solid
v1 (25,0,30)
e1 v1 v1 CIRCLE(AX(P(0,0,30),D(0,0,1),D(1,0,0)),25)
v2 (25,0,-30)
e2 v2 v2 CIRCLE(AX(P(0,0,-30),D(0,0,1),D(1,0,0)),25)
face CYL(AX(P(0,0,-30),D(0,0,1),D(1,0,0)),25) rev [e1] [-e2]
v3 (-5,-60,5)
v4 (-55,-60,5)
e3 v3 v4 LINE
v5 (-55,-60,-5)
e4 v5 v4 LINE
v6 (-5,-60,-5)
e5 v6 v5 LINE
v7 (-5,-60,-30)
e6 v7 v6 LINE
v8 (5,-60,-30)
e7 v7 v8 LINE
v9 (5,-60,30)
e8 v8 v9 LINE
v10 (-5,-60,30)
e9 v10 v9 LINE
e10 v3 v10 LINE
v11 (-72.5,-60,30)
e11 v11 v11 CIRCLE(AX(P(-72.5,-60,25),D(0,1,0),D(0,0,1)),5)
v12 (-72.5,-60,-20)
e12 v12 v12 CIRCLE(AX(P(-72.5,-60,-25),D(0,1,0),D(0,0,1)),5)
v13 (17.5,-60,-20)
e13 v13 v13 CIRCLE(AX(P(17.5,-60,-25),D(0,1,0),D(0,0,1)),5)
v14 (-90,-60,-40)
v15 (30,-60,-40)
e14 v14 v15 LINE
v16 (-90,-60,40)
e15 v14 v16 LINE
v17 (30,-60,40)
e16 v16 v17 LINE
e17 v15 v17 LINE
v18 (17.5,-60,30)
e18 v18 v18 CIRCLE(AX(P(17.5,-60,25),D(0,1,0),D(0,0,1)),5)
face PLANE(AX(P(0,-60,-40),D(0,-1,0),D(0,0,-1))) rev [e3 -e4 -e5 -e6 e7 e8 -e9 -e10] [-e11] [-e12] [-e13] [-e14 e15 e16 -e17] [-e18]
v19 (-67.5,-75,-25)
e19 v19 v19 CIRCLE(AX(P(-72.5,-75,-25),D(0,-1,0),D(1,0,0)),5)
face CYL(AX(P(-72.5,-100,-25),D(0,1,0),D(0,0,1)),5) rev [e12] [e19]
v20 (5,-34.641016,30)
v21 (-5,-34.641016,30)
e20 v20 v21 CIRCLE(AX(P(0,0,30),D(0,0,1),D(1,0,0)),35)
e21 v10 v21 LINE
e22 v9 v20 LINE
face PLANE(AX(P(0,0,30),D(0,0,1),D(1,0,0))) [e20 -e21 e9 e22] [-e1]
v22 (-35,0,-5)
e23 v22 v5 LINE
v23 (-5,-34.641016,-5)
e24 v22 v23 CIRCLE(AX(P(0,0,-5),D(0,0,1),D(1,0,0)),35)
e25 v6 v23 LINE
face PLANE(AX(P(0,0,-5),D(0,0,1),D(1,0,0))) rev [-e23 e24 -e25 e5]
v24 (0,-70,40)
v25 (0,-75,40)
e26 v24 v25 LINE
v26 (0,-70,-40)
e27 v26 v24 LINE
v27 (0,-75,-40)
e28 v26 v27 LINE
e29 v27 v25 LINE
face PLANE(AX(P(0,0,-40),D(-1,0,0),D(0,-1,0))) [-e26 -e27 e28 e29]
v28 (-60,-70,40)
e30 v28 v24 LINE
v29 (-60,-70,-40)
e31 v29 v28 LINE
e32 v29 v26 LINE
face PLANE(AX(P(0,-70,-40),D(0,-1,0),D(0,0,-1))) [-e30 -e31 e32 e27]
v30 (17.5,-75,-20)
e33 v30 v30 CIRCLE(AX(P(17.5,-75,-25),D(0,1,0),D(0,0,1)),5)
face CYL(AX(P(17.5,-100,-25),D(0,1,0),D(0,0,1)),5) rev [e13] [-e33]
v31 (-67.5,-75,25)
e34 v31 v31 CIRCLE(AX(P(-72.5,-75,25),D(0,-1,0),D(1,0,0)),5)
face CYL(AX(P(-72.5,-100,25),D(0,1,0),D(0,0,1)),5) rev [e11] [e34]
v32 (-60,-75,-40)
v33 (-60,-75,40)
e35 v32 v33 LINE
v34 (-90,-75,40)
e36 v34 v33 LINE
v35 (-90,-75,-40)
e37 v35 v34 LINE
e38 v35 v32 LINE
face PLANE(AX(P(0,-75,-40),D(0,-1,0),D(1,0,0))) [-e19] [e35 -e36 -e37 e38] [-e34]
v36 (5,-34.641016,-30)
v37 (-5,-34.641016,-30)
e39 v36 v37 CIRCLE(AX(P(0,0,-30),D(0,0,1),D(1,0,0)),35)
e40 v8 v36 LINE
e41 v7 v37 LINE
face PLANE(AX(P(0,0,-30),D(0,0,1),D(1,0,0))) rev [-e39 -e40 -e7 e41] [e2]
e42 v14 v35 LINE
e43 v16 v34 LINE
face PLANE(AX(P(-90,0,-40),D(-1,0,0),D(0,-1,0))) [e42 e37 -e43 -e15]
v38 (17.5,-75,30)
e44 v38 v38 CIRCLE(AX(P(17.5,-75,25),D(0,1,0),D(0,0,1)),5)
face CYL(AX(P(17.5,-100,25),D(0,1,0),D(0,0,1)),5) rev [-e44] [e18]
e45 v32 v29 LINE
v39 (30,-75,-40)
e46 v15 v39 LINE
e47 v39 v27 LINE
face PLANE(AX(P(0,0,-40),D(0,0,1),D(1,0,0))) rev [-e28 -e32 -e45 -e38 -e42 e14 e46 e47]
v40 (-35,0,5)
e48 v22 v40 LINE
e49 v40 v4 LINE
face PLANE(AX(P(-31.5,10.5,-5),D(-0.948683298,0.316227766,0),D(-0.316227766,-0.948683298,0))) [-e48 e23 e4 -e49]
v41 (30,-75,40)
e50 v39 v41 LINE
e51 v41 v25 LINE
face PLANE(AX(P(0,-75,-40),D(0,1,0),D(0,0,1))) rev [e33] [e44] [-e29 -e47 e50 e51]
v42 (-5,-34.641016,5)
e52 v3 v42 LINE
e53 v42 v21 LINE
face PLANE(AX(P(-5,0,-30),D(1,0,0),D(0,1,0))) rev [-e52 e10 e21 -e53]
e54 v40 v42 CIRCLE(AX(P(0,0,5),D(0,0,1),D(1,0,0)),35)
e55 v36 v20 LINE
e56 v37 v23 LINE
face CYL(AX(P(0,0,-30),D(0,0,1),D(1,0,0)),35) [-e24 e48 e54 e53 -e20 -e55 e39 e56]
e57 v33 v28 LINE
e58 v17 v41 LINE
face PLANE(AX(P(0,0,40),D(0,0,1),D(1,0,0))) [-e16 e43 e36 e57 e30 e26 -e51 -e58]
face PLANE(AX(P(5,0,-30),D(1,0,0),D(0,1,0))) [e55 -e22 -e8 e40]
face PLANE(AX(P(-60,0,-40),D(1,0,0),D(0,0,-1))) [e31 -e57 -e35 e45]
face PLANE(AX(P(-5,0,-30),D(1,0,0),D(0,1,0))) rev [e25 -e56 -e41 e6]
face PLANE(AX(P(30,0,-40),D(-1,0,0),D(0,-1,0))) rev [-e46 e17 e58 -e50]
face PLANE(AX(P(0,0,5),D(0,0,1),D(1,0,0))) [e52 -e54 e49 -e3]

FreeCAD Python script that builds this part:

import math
import FreeCAD as App
import Part
import Sketcher
Q = App.Units.Quantity

doc = App.newDocument("Part")
body = doc.addObject("PartDesign::Body", "Body")

sketch1 = body.newObject("Sketcher::SketchObject", "Sketch")
sketch1.AttachmentSupport = (doc.getObject("XY_Plane"), [""])
sketch1.MapMode = "FlatFace"
sketch1.addGeometry(Part.ArcOfCircle(Part.Circle(App.Vector(0, 0, 0), App.Vector(0, 0, 1), 35), math.radians(-82), math.radians(262)), False)
sketch1.addGeometry(Part.LineSegment(App.Vector(-5, -35, 0), App.Vector(-5, -60, 0)), False)
sketch1.addGeometry(Part.LineSegment(App.Vector(-5, -60, 0), App.Vector(5, -60, 0)), False)
sketch1.addGeometry(Part.LineSegment(App.Vector(5, -60, 0), App.Vector(5, -35, 0)), False)
sketch1.addGeometry(Part.Circle(App.Vector(0, 0, 0), App.Vector(0, 0, 1), 25), False)
sketch1.addConstraint(Sketcher.Constraint("Coincident", 0, 2, 1, 1))
sketch1.addConstraint(Sketcher.Constraint("Coincident", 1, 2, 2, 1))
sketch1.addConstraint(Sketcher.Constraint("Coincident", 2, 2, 3, 1))
sketch1.addConstraint(Sketcher.Constraint("Coincident", 3, 2, 0, 1))
sketch1.addConstraint(Sketcher.Constraint("Vertical", 1))
sketch1.addConstraint(Sketcher.Constraint("Horizontal", 2))
sketch1.addConstraint(Sketcher.Constraint("Vertical", 3))
sketch1.addConstraint(Sketcher.Constraint("Coincident", 0, 3, -1, 1))
sketch1.addConstraint(Sketcher.Constraint("Coincident", 4, 3, -1, 1))
sketch1.addConstraint(Sketcher.Constraint("Horizontal", 0, 2, 3, 2))
sketch1.addConstraint(Sketcher.Constraint("Diameter", 4, Q("50 mm")))
sketch1.addConstraint(Sketcher.Constraint("Radius", 0, Q("35 mm")))
sketch1.addConstraint(Sketcher.Constraint("DistanceX", 2, 1, 2, 2, Q("10 mm")))
sketch1.addConstraint(Sketcher.Constraint("DistanceY", 1, 2, -1, 1, Q("60 mm")))
pad1 = body.newObject("PartDesign::Pad", "Pad")
pad1.Profile = sketch1
pad1.Type = "TwoLengths"
pad1.Length = 30
pad1.Length2 = 30

sketch2 = body.newObject("Sketcher::SketchObject", "Sketch001")
sketch2.AttachmentSupport = (doc.getObject("XY_Plane"), [""])
sketch2.MapMode = "FlatFace"
sketch2.addGeometry(Part.LineSegment(App.Vector(-55, -60, 0), App.Vector(-5, -60, 0)), False)
sketch2.addGeometry(Part.LineSegment(App.Vector(-5, -60, 0), App.Vector(-5, -35, 0)), False)
sketch2.addGeometry(Part.ArcOfCircle(Part.Circle(App.Vector(0, 0, 0), App.Vector(0, 0, 1), 35), math.radians(180), math.radians(262)), False)
sketch2.addGeometry(Part.LineSegment(App.Vector(-35, 0, 0), App.Vector(-55, -60, 0)), False)
sketch2.addConstraint(Sketcher.Constraint("Coincident", 0, 2, 1, 1))
sketch2.addConstraint(Sketcher.Constraint("Coincident", 1, 2, 2, 2))
sketch2.addConstraint(Sketcher.Constraint("Coincident", 2, 1, 3, 1))
sketch2.addConstraint(Sketcher.Constraint("Coincident", 3, 2, 0, 1))
sketch2.addConstraint(Sketcher.Constraint("Horizontal", 0))
sketch2.addConstraint(Sketcher.Constraint("Vertical", 1))
sketch2.addConstraint(Sketcher.Constraint("Coincident", 2, 3, -1, 1))
sketch2.addConstraint(Sketcher.Constraint("PointOnObject", 2, 1, -1))
sketch2.addConstraint(Sketcher.Constraint("Radius", 2, Q("35 mm")))
sketch2.addConstraint(Sketcher.Constraint("DistanceX", 0, 1, 0, 2, Q("50 mm")))
sketch2.addConstraint(Sketcher.Constraint("DistanceX", 0, 2, -1, 1, Q("5 mm")))
sketch2.addConstraint(Sketcher.Constraint("DistanceY", 0, 2, -1, 1, Q("60 mm")))
pad2 = body.newObject("PartDesign::Pad", "Pad001")
pad2.Profile = sketch2
pad2.Type = "TwoLengths"
pad2.Length = 5
pad2.Length2 = 5

sketch3 = body.newObject("Sketcher::SketchObject", "Sketch002")
sketch3.AttachmentSupport = (doc.getObject("XY_Plane"), [""])
sketch3.MapMode = "FlatFace"
sketch3.addGeometry(Part.LineSegment(App.Vector(-90, -60, 0), App.Vector(-90, -75, 0)), False)
sketch3.addGeometry(Part.LineSegment(App.Vector(-90, -75, 0), App.Vector(-60, -75, 0)), False)
sketch3.addGeometry(Part.LineSegment(App.Vector(-60, -75, 0), App.Vector(-60, -70, 0)), False)
sketch3.addGeometry(Part.LineSegment(App.Vector(-60, -70, 0), App.Vector(0, -70, 0)), False)
sketch3.addGeometry(Part.LineSegment(App.Vector(0, -70, 0), App.Vector(0, -75, 0)), False)
sketch3.addGeometry(Part.LineSegment(App.Vector(0, -75, 0), App.Vector(30, -75, 0)), False)
sketch3.addGeometry(Part.LineSegment(App.Vector(30, -75, 0), App.Vector(30, -60, 0)), False)
sketch3.addGeometry(Part.LineSegment(App.Vector(30, -60, 0), App.Vector(-90, -60, 0)), False)
sketch3.addConstraint(Sketcher.Constraint("Coincident", 0, 2, 1, 1))
sketch3.addConstraint(Sketcher.Constraint("Coincident", 1, 2, 2, 1))
sketch3.addConstraint(Sketcher.Constraint("Coincident", 2, 2, 3, 1))
sketch3.addConstraint(Sketcher.Constraint("Coincident", 3, 2, 4, 1))
sketch3.addConstraint(Sketcher.Constraint("Coincident", 4, 2, 5, 1))
sketch3.addConstraint(Sketcher.Constraint("Coincident", 5, 2, 6, 1))
sketch3.addConstraint(Sketcher.Constraint("Coincident", 6, 2, 7, 1))
sketch3.addConstraint(Sketcher.Constraint("Coincident", 7, 2, 0, 1))
sketch3.addConstraint(Sketcher.Constraint("Vertical", 0))
sketch3.addConstraint(Sketcher.Constraint("Horizontal", 1))
sketch3.addConstraint(Sketcher.Constraint("Vertical", 2))
sketch3.addConstraint(Sketcher.Constraint("Horizontal", 3))
sketch3.addConstraint(Sketcher.Constraint("Vertical", 4))
sketch3.addConstraint(Sketcher.Constraint("Horizontal", 5))
sketch3.addConstraint(Sketcher.Constraint("Vertical", 6))
sketch3.addConstraint(Sketcher.Constraint("Horizontal", 7))
sketch3.addConstraint(Sketcher.Constraint("PointOnObject", 3, 2, -2))
sketch3.addConstraint(Sketcher.Constraint("Horizontal", 1, 2, 4, 2))
sketch3.addConstraint(Sketcher.Constraint("Equal", 1, 5))
sketch3.addConstraint(Sketcher.Constraint("DistanceX", 1, 1, 1, 2, Q("30 mm")))
sketch3.addConstraint(Sketcher.Constraint("DistanceX", 3, 1, 3, 2, Q("60 mm")))
sketch3.addConstraint(Sketcher.Constraint("DistanceY", 0, 2, 0, 1, Q("15 mm")))
sketch3.addConstraint(Sketcher.Constraint("DistanceY", 2, 1, 2, 2, Q("5 mm")))
sketch3.addConstraint(Sketcher.Constraint("DistanceY", 0, 2, -1, 1, Q("75 mm")))
pad3 = body.newObject("PartDesign::Pad", "Pad002")
pad3.Profile = sketch3
pad3.Type = "TwoLengths"
pad3.Length = 40
pad3.Length2 = 40

sketch4 = body.newObject("Sketcher::SketchObject", "Sketch003")
sketch4.AttachmentSupport = (doc.getObject("XZ_Plane"), [""])
sketch4.MapMode = "FlatFace"
sketch4.AttachmentOffset = App.Placement(App.Vector(0, 0, 60), App.Rotation())
sketch4.addGeometry(Part.Circle(App.Vector(-72, -25, 0), App.Vector(0, 0, 1), 5), False)
sketch4.addGeometry(Part.Circle(App.Vector(18, -25, 0), App.Vector(0, 0, 1), 5), False)
sketch4.addGeometry(Part.Circle(App.Vector(18, 25, 0), App.Vector(0, 0, 1), 5), False)
sketch4.addGeometry(Part.Circle(App.Vector(-72, 25, 0), App.Vector(0, 0, 1), 5), False)
sketch4.addConstraint(Sketcher.Constraint("Equal", 0, 1))
sketch4.addConstraint(Sketcher.Constraint("Equal", 1, 2))
sketch4.addConstraint(Sketcher.Constraint("Equal", 2, 3))
sketch4.addConstraint(Sketcher.Constraint("Symmetric", 1, 3, 2, 3, -1))
sketch4.addConstraint(Sketcher.Constraint("Symmetric", 0, 3, 3, 3, -1))
sketch4.addConstraint(Sketcher.Constraint("Horizontal", 0, 3, 1, 3))
sketch4.addConstraint(Sketcher.Constraint("Diameter", 0, Q("10 mm")))
sketch4.addConstraint(Sketcher.Constraint("DistanceY", 0, 3, -1, 1, Q("25 mm")))
sketch4.addConstraint(Sketcher.Constraint("DistanceX", 0, 3, 1, 3, Q("90 mm")))
sketch4.addConstraint(Sketcher.Constraint("DistanceX", 0, 3, -1, 1, Q("72.5 mm")))
pocket1 = body.newObject("PartDesign::Pocket", "Pocket")
pocket1.Profile = sketch4
pocket1.Length = 40
pocket1.Reversed = True

doc.recompute()
